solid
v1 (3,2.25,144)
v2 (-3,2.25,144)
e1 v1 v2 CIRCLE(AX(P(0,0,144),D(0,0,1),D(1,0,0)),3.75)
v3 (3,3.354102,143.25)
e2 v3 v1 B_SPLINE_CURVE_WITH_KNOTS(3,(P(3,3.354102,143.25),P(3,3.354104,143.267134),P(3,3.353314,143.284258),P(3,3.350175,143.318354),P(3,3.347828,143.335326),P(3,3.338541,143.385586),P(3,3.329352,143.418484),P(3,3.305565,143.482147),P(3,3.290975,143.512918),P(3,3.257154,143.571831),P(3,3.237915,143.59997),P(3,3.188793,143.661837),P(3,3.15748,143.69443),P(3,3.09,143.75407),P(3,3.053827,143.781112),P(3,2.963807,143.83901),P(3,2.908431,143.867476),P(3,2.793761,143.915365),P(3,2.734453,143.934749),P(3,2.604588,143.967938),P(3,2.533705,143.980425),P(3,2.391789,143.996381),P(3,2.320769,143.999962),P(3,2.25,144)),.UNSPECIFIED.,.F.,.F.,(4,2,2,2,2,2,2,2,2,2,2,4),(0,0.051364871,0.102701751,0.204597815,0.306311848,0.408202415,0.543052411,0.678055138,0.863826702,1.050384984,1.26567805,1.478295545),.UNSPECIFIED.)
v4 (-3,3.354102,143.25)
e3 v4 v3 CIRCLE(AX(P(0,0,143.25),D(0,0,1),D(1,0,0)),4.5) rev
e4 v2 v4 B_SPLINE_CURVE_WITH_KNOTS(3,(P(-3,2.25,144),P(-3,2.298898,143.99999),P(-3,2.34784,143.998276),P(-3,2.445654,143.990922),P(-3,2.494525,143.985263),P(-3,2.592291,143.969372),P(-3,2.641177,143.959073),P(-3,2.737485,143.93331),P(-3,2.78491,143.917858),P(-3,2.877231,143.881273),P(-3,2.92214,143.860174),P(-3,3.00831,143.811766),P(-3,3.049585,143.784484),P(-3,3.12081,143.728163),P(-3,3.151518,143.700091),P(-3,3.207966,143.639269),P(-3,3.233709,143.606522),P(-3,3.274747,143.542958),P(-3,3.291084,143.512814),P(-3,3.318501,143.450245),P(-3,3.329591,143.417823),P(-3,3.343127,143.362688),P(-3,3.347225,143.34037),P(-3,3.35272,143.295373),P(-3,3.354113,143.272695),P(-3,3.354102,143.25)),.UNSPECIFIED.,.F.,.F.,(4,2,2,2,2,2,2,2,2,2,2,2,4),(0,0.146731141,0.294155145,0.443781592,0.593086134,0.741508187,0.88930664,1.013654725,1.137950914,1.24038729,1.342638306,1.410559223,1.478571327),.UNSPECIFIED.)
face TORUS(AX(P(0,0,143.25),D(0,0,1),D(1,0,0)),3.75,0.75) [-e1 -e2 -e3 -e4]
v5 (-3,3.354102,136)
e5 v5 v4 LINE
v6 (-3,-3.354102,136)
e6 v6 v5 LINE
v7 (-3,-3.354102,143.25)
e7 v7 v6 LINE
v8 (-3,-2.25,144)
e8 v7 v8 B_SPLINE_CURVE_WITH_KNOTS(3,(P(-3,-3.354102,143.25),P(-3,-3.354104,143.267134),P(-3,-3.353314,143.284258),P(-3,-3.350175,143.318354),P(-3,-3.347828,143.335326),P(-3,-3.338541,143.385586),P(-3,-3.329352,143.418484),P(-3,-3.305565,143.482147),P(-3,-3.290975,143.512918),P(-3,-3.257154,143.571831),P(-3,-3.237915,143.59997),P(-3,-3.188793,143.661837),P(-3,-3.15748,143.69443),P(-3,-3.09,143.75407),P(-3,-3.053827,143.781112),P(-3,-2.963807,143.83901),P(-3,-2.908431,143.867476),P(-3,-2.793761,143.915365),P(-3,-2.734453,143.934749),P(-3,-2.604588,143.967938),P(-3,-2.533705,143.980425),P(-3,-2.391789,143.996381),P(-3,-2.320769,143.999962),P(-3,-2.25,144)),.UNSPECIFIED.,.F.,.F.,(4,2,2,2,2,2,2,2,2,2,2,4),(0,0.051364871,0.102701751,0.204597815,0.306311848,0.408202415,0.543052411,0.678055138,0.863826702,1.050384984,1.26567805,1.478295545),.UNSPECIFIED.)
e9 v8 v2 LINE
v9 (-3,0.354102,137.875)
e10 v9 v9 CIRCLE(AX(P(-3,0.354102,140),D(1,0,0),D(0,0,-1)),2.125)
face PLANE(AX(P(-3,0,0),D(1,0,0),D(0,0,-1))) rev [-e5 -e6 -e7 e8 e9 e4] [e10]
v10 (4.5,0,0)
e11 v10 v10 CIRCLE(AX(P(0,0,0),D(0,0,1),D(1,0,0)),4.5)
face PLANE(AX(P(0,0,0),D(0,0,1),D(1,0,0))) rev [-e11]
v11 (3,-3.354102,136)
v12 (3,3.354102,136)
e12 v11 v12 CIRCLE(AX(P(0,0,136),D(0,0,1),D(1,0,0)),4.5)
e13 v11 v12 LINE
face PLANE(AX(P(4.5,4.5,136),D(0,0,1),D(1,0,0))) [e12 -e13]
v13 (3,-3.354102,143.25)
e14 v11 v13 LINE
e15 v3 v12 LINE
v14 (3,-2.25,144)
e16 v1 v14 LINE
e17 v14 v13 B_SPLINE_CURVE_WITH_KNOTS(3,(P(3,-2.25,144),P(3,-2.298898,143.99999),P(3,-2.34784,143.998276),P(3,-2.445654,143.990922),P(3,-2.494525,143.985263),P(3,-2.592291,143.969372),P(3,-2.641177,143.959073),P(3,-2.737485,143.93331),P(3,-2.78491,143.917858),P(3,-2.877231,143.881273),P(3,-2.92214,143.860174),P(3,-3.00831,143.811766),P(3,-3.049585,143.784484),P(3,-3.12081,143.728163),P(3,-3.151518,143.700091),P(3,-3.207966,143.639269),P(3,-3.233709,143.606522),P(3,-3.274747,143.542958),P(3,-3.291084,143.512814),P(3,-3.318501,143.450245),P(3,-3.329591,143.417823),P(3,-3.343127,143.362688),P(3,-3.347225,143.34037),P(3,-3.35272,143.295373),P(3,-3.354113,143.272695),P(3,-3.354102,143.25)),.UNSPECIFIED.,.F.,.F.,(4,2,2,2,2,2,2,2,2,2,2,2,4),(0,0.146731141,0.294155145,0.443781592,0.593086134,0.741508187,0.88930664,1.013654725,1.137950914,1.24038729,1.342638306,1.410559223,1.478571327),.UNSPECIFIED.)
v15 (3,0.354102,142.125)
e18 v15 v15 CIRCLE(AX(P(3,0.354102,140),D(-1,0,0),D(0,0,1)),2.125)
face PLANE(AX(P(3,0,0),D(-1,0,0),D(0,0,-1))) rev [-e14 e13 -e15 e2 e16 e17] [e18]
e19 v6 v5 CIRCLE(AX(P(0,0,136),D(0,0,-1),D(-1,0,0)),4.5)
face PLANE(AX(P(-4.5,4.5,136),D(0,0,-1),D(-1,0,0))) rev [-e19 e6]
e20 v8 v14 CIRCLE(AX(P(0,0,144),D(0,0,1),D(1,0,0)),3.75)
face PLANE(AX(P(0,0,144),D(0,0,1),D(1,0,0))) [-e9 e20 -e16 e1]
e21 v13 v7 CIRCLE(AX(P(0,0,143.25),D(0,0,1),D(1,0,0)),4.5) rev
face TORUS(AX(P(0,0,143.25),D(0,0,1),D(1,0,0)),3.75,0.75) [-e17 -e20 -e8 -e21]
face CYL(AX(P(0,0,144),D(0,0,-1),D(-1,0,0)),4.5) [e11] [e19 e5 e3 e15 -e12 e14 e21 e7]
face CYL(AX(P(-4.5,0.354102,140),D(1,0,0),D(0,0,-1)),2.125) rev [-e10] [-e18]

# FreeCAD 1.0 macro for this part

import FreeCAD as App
import Part
import Sketcher


def edges_at(feature, points):
    """Names of the edges that pass closest to the given points."""
    edges = feature.Shape.Edges
    near = lambda p: min(range(len(edges)), key=lambda i: edges[i].distToShape(Part.Vertex(*p))[0])
    return sorted({f"Edge{near(p) + 1}" for p in points})

doc = App.newDocument("Part")
body = doc.addObject("PartDesign::Body", "Body")

# Sketch on XY plane
sketch1 = body.newObject("Sketcher::SketchObject", "Sketch")
sketch1.AttachmentSupport = (doc.getObject("XY_Plane"), [""])
sketch1.MapMode = "FlatFace"
sketch1.addGeometry(Part.Circle(App.Vector(0, 0, 0), App.Vector(0, 0, 1), 4.5), False)
sketch1.addConstraint([
    Sketcher.Constraint("Coincident", 0, 3, -1, 1),
    Sketcher.Constraint("Diameter", 0, 9.0),
])
pad1 = body.newObject("PartDesign::Pad", "Pad")
pad1.Profile = sketch1
pad1.Length = 144

# Sketch on YZ plane
sketch2 = body.newObject("Sketcher::SketchObject", "Sketch001")
sketch2.AttachmentSupport = (doc.getObject("YZ_Plane"), [""])
sketch2.MapMode = "FlatFace"
sketch2.AttachmentOffset = App.Placement(App.Vector(0, 0, -3), App.Rotation())
sketch2.addGeometry([
    Part.LineSegment(App.Vector(4, 144, 0), App.Vector(-4, 144, 0)),
    Part.LineSegment(App.Vector(-4, 144, 0), App.Vector(-4, 136, 0)),
    Part.LineSegment(App.Vector(-4, 136, 0), App.Vector(4, 136, 0)),
    Part.LineSegment(App.Vector(4, 136, 0), App.Vector(4, 144, 0)),
], False)
sketch2.addConstraint([
    Sketcher.Constraint("Coincident", 0, 2, 1, 1),
    Sketcher.Constraint("Coincident", 1, 2, 2, 1),
    Sketcher.Constraint("Coincident", 2, 2, 3, 1),
    Sketcher.Constraint("Coincident", 3, 2, 0, 1),
    Sketcher.Constraint("Horizontal", 0),
    Sketcher.Constraint("Vertical", 1),
    Sketcher.Constraint("Horizontal", 2),
    Sketcher.Constraint("Vertical", 3),
    Sketcher.Constraint("DistanceX", 0, 2, 0, 1, 9.0),
    Sketcher.Constraint("DistanceY", 1, 2, 1, 1, 8.0),
    Sketcher.Constraint("DistanceY", -1, 1, 0, 2, 144.0),
    Sketcher.Constraint("DistanceX", 0, 2, -1, 1, 4.5),
])
pocket1 = body.newObject("PartDesign::Pocket", "Pocket")
pocket1.Profile = sketch2
pocket1.Length = 1.5
doc.recompute()

mirrored = body.newObject("PartDesign::Mirrored", "Mirrored")
mirrored.Originals = [pocket1]
mirrored.MirrorPlane = (doc.getObject("YZ_Plane"), [""])
body.Tip = mirrored
doc.recompute()

fillet = body.newObject("PartDesign::Fillet", "Fillet")
fillet.Base = (mirrored, edges_at(mirrored, [(0, 4.5, 144), (0, -4.5, 144)]))
fillet.Radius = 0.75

# Sketch on YZ plane
sketch3 = body.newObject("Sketcher::SketchObject", "Sketch002")
sketch3.AttachmentSupport = (doc.getObject("YZ_Plane"), [""])
sketch3.MapMode = "FlatFace"
sketch3.AttachmentOffset = App.Placement(App.Vector(0, 0, 3), App.Rotation())
sketch3.addGeometry(Part.Circle(App.Vector(0.4, 140, 0), App.Vector(0, 0, 1), 2.1), False)
sketch3.addConstraint([
    Sketcher.Constraint("Diameter", 0, 4.25),
    Sketcher.Constraint("DistanceY", -1, 1, 0, 3, 140.0),
    Sketcher.Constraint("DistanceX", -1, 1, 0, 3, 0.354102),
])
pocket2 = body.newObject("PartDesign::Pocket", "Pocket001")
pocket2.Profile = sketch3
pocket2.Type = "ThroughAll"
pocket2.Midplane = True

doc.recompute()
